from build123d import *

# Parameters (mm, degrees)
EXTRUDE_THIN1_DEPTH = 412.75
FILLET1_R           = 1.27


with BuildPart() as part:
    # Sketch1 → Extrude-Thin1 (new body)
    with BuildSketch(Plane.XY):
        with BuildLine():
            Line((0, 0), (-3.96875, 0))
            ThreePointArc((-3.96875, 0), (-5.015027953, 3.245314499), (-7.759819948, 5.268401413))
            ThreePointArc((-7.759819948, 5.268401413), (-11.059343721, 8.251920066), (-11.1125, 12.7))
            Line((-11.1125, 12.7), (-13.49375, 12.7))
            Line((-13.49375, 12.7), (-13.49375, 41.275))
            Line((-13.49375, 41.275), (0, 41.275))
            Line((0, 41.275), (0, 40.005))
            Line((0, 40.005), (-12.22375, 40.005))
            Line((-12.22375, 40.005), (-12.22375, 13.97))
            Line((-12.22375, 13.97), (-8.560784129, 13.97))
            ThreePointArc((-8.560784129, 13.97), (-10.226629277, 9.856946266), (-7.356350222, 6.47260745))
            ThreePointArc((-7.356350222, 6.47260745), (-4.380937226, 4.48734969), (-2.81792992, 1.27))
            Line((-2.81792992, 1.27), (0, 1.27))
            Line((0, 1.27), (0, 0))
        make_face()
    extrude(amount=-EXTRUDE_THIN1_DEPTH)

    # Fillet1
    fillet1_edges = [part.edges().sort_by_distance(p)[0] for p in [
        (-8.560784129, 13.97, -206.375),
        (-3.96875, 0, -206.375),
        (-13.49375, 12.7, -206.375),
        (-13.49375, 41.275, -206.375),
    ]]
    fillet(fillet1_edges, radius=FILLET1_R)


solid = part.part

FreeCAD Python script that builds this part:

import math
import FreeCAD as App
import Part
import Sketcher

V = App.Vector
Q = App.Units.Quantity


def edges_at(feature, points):
    """Names of the edges that pass closest to the given points."""
    edges = feature.Shape.Edges
    near = lambda p: min(range(len(edges)), key=lambda i: edges[i].distToShape(Part.Vertex(*p))[0])
    return sorted({f"Edge{near(p) + 1}" for p in points})

doc = App.newDocument("Part")
body = doc.addObject("PartDesign::Body", "Body")

sketch1 = body.newObject("Sketcher::SketchObject", "Sketch")
sketch1.AttachmentSupport = (doc.getObject("XY_Plane"), [""])
sketch1.MapMode = "FlatFace"
sketch1.addGeometry(Part.LineSegment(V(-4, 0, 0), V(0, 0, 0)), False)
sketch1.addGeometry(Part.LineSegment(V(0, 0, 0), V(0, 1.3, 0)), False)
sketch1.addGeometry(Part.LineSegment(V(0, 1.3, 0), V(-2.8, 1.3, 0)), False)
sketch1.addGeometry(Part.ArcOfCircle(Part.Circle(V(-9.5, 0, 0), V(0, 0, 1), 6.8), math.radians(11), math.radians(71)), False)
sketch1.addGeometry(Part.ArcOfCircle(Part.Circle(V(-6, 10.5, 0), V(0, 0, 1), 4.3), math.radians(127), math.radians(251)), False)
sketch1.addGeometry(Part.LineSegment(V(-8.6, 14, 0), V(-12.2, 14, 0)), False)
sketch1.addGeometry(Part.LineSegment(V(-12.2, 14, 0), V(-12.2, 40, 0)), False)
sketch1.addGeometry(Part.LineSegment(V(-12.2, 40, 0), V(0, 40, 0)), False)
sketch1.addGeometry(Part.LineSegment(V(0, 40, 0), V(0, 41.3, 0)), False)
sketch1.addGeometry(Part.LineSegment(V(0, 41.3, 0), V(-13.5, 41.3, 0)), False)
sketch1.addGeometry(Part.LineSegment(V(-13.5, 41.3, 0), V(-13.5, 12.7, 0)), False)
sketch1.addGeometry(Part.LineSegment(V(-13.5, 12.7, 0), V(-11.1, 12.7, 0)), False)
sketch1.addGeometry(Part.ArcOfCircle(Part.Circle(V(-6, 10.5, 0), V(0, 0, 1), 5.6), math.radians(157), math.radians(251)), False)
sketch1.addGeometry(Part.ArcOfCircle(Part.Circle(V(-9.5, 0, 0), V(0, 0, 1), 5.6), math.radians(0), math.radians(71)), False)
sketch1.addConstraint(Sketcher.Constraint("Coincident", 0, 2, 1, 1))
sketch1.addConstraint(Sketcher.Constraint("Coincident", 1, 2, 2, 1))
sketch1.addConstraint(Sketcher.Constraint("Coincident", 2, 2, 3, 1))
sketch1.addConstraint(Sketcher.Constraint("Tangent", 3, 2, 4, 2))
sketch1.addConstraint(Sketcher.Constraint("Coincident", 4, 1, 5, 1))
sketch1.addConstraint(Sketcher.Constraint("Coincident", 5, 2, 6, 1))
sketch1.addConstraint(Sketcher.Constraint("Coincident", 6, 2, 7, 1))
sketch1.addConstraint(Sketcher.Constraint("Coincident", 7, 2, 8, 1))
sketch1.addConstraint(Sketcher.Constraint("Coincident", 8, 2, 9, 1))
sketch1.addConstraint(Sketcher.Constraint("Coincident", 9, 2, 10, 1))
sketch1.addConstraint(Sketcher.Constraint("Coincident", 10, 2, 11, 1))
sketch1.addConstraint(Sketcher.Constraint("Coincident", 11, 2, 12, 1))
sketch1.addConstraint(Sketcher.Constraint("Tangent", 12, 2, 13, 2))
sketch1.addConstraint(Sketcher.Constraint("Coincident", 13, 1, 0, 1))
sketch1.addConstraint(Sketcher.Constraint("Horizontal", 0))
sketch1.addConstraint(Sketcher.Constraint("Vertical", 1))
sketch1.addConstraint(Sketcher.Constraint("Horizontal", 2))
sketch1.addConstraint(Sketcher.Constraint("Horizontal", 5))
sketch1.addConstraint(Sketcher.Constraint("Vertical", 6))
sketch1.addConstraint(Sketcher.Constraint("Horizontal", 7))
sketch1.addConstraint(Sketcher.Constraint("Vertical", 8))
sketch1.addConstraint(Sketcher.Constraint("Horizontal", 9))
sketch1.addConstraint(Sketcher.Constraint("Vertical", 10))
sketch1.addConstraint(Sketcher.Constraint("Horizontal", 11))
sketch1.addConstraint(Sketcher.Constraint("Coincident", 0, 2, -1, 1))
sketch1.addConstraint(Sketcher.Constraint("Coincident", 12, 3, 4, 3))
sketch1.addConstraint(Sketcher.Constraint("Coincident", 13, 3, 3, 3))
sketch1.addConstraint(Sketcher.Constraint("Equal", 12, 13))
sketch1.addConstraint(Sketcher.Constraint("PointOnObject", 3, 3, -1))
sketch1.addConstraint(Sketcher.Constraint("PointOnObject", 7, 2, -2))
sketch1.addConstraint(Sketcher.Constraint("Equal", 1, 8))
sketch1.addConstraint(Sketcher.Constraint("Radius", 12, Q("0.21875 in")))
sketch1.addConstraint(Sketcher.Constraint("DistanceY", 1, 1, 1, 2, Q("0.05 in")))
sketch1.addConstraint(Sketcher.Constraint("DistanceY", -1, 1, 10, 2, Q("0.5 in")))
sketch1.addConstraint(Sketcher.Constraint("DistanceY", 2, 2, 4, 1, Q("0.5 in")))
sketch1.addConstraint(Sketcher.Constraint("DistanceX", 0, 1, 0, 2, Q("0.15625 in")))
sketch1.addConstraint(Sketcher.Constraint("DistanceX", 9, 2, 9, 1, Q("0.53125 in")))
sketch1.addConstraint(Sketcher.Constraint("DistanceX", 11, 1, 11, 2, Q("0.09375 in")))
sketch1.addConstraint(Sketcher.Constraint("DistanceY", 6, 1, 6, 2, Q("1.025 in")))
sketch1.addConstraint(Sketcher.Constraint("DistanceX", 9, 2, 6, 2, Q("0.05 in")))
sketch1.addConstraint(Sketcher.Constraint("Radius", 3, 6.82625))
pad1 = body.newObject("PartDesign::Pad", "Pad")
pad1.Profile = sketch1
pad1.Length = Q("16.25 in")
pad1.Reversed = True
doc.recompute()

fillet = body.newObject("PartDesign::Fillet", "Fillet")
fillet.Base = (pad1, edges_at(pad1, [
    (-8.561, 13.97, -206.375),
    (-3.969, 0, -206.375),
    (-13.494, 12.7, -206.375),
    (-13.494, 41.275, -206.375),
]))
fillet.Radius = Q("0.05 in")

doc.recompute()
